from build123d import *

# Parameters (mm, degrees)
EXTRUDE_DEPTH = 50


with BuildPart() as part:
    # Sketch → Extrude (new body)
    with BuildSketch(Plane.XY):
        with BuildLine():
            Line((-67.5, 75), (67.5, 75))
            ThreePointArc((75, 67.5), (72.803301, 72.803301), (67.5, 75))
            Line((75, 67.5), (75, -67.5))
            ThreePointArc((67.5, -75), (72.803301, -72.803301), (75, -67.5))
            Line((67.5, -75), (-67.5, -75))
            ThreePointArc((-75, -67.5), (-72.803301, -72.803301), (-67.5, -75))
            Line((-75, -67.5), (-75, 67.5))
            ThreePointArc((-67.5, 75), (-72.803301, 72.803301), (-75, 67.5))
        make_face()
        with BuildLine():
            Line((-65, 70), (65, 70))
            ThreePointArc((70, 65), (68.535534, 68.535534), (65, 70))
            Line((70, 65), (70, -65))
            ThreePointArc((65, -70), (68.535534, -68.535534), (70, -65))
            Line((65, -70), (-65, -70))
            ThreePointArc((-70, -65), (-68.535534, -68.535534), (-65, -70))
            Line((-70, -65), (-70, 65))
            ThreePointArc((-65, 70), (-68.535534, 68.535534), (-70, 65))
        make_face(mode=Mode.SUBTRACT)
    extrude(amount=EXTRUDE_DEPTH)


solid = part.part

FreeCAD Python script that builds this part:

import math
import FreeCAD as App
import Part
import Sketcher

doc = App.newDocument("Part")
body = doc.addObject("PartDesign::Body", "Body")

# Sketch on XY plane
sketch1 = doc.addObject("Sketcher::SketchObject", "Sketch")
body.addObject(sketch1)
sketch1.AttachmentSupport = (doc.XY_Plane, [""])
sketch1.MapMode = "FlatFace"
sketch1.addGeometry([
    Part.LineSegment(App.Vector(67.5, 75, 0), App.Vector(-67.5, 75, 0)),  # 0
    Part.ArcOfCircle(Part.Circle(App.Vector(-67.5, 67.5, 0), App.Vector(0, 0, 1), 7.5), math.radians(90), math.radians(180)),  # 1
    Part.LineSegment(App.Vector(-75, 67.5, 0), App.Vector(-75, -67.5, 0)),  # 2
    Part.ArcOfCircle(Part.Circle(App.Vector(-67.5, -67.5, 0), App.Vector(0, 0, 1), 7.5), math.radians(180), math.radians(270)),  # 3
    Part.LineSegment(App.Vector(-67.5, -75, 0), App.Vector(67.5, -75, 0)),  # 4
    Part.ArcOfCircle(Part.Circle(App.Vector(67.5, -67.5, 0), App.Vector(0, 0, 1), 7.5), math.radians(-90), math.radians(0)),  # 5
    Part.LineSegment(App.Vector(75, -67.5, 0), App.Vector(75, 67.5, 0)),  # 6
    Part.ArcOfCircle(Part.Circle(App.Vector(67.5, 67.5, 0), App.Vector(0, 0, 1), 7.5), math.radians(0), math.radians(90)),  # 7
    Part.LineSegment(App.Vector(-65, 70, 0), App.Vector(65, 70, 0)),  # 8
    Part.ArcOfCircle(Part.Circle(App.Vector(65, 65, 0), App.Vector(0, 0, 1), 5), math.radians(0), math.radians(90)),  # 9
    Part.LineSegment(App.Vector(70, 65, 0), App.Vector(70, -65, 0)),  # 10
    Part.ArcOfCircle(Part.Circle(App.Vector(65, -65, 0), App.Vector(0, 0, 1), 5), math.radians(-90), math.radians(0)),  # 11
    Part.LineSegment(App.Vector(65, -70, 0), App.Vector(-65, -70, 0)),  # 12
    Part.ArcOfCircle(Part.Circle(App.Vector(-65, -65, 0), App.Vector(0, 0, 1), 5), math.radians(180), math.radians(270)),  # 13
    Part.LineSegment(App.Vector(-70, -65, 0), App.Vector(-70, 65, 0)),  # 14
    Part.ArcOfCircle(Part.Circle(App.Vector(-65, 65, 0), App.Vector(0, 0, 1), 5), math.radians(90), math.radians(180)),  # 15
], False)
sketch1.addConstraint([
    Sketcher.Constraint("Tangent", 0, 2, 1, 1),
    Sketcher.Constraint("Tangent", 1, 2, 2, 1),
    Sketcher.Constraint("Tangent", 2, 2, 3, 1),
    Sketcher.Constraint("Tangent", 3, 2, 4, 1),
    Sketcher.Constraint("Tangent", 4, 2, 5, 1),
    Sketcher.Constraint("Tangent", 5, 2, 6, 1),
    Sketcher.Constraint("Tangent", 6, 2, 7, 1),
    Sketcher.Constraint("Tangent", 7, 2, 0, 1),
    Sketcher.Constraint("Tangent", 8, 2, 9, 2),
    Sketcher.Constraint("Tangent", 9, 1, 10, 1),
    Sketcher.Constraint("Tangent", 10, 2, 11, 2),
    Sketcher.Constraint("Tangent", 11, 1, 12, 1),
    Sketcher.Constraint("Tangent", 12, 2, 13, 2),
    Sketcher.Constraint("Tangent", 13, 1, 14, 1),
    Sketcher.Constraint("Tangent", 14, 2, 15, 2),
    Sketcher.Constraint("Tangent", 15, 1, 8, 1),
    Sketcher.Constraint("Horizontal", 0),
    Sketcher.Constraint("Vertical", 2),
    Sketcher.Constraint("Horizontal", 4),
    Sketcher.Constraint("Vertical", 6),
    Sketcher.Constraint("Horizontal", 8),
    Sketcher.Constraint("Vertical", 10),
    Sketcher.Constraint("Horizontal", 12),
    Sketcher.Constraint("Vertical", 14),
    Sketcher.Constraint("Equal", 1, 3),
    Sketcher.Constraint("Equal", 3, 5),
    Sketcher.Constraint("Equal", 5, 7),
    Sketcher.Constraint("Equal", 9, 11),
    Sketcher.Constraint("Equal", 11, 13),
    Sketcher.Constraint("Equal", 13, 15),
    Sketcher.Constraint("Symmetric", 1, 3, 5, 3, -1, 1),
    Sketcher.Constraint("Symmetric", 9, 3, 13, 3, -1, 1),
    Sketcher.Constraint("Equal", 4, 2),
    Sketcher.Constraint("Equal", 12, 10),
    Sketcher.Constraint("Radius", 9, 5.0),
    Sketcher.Constraint("Radius", 1, 7.5),
    Sketcher.Constraint("DistanceX", 0, 2, 0, 1, 135.0),
    Sketcher.Constraint("DistanceX", 8, 1, 8, 2, 130.0),
])
pad1 = doc.addObject("PartDesign::Pad", "Pad")
body.addObject(pad1)
pad1.Profile = sketch1
pad1.Length = 50

doc.recompute()
